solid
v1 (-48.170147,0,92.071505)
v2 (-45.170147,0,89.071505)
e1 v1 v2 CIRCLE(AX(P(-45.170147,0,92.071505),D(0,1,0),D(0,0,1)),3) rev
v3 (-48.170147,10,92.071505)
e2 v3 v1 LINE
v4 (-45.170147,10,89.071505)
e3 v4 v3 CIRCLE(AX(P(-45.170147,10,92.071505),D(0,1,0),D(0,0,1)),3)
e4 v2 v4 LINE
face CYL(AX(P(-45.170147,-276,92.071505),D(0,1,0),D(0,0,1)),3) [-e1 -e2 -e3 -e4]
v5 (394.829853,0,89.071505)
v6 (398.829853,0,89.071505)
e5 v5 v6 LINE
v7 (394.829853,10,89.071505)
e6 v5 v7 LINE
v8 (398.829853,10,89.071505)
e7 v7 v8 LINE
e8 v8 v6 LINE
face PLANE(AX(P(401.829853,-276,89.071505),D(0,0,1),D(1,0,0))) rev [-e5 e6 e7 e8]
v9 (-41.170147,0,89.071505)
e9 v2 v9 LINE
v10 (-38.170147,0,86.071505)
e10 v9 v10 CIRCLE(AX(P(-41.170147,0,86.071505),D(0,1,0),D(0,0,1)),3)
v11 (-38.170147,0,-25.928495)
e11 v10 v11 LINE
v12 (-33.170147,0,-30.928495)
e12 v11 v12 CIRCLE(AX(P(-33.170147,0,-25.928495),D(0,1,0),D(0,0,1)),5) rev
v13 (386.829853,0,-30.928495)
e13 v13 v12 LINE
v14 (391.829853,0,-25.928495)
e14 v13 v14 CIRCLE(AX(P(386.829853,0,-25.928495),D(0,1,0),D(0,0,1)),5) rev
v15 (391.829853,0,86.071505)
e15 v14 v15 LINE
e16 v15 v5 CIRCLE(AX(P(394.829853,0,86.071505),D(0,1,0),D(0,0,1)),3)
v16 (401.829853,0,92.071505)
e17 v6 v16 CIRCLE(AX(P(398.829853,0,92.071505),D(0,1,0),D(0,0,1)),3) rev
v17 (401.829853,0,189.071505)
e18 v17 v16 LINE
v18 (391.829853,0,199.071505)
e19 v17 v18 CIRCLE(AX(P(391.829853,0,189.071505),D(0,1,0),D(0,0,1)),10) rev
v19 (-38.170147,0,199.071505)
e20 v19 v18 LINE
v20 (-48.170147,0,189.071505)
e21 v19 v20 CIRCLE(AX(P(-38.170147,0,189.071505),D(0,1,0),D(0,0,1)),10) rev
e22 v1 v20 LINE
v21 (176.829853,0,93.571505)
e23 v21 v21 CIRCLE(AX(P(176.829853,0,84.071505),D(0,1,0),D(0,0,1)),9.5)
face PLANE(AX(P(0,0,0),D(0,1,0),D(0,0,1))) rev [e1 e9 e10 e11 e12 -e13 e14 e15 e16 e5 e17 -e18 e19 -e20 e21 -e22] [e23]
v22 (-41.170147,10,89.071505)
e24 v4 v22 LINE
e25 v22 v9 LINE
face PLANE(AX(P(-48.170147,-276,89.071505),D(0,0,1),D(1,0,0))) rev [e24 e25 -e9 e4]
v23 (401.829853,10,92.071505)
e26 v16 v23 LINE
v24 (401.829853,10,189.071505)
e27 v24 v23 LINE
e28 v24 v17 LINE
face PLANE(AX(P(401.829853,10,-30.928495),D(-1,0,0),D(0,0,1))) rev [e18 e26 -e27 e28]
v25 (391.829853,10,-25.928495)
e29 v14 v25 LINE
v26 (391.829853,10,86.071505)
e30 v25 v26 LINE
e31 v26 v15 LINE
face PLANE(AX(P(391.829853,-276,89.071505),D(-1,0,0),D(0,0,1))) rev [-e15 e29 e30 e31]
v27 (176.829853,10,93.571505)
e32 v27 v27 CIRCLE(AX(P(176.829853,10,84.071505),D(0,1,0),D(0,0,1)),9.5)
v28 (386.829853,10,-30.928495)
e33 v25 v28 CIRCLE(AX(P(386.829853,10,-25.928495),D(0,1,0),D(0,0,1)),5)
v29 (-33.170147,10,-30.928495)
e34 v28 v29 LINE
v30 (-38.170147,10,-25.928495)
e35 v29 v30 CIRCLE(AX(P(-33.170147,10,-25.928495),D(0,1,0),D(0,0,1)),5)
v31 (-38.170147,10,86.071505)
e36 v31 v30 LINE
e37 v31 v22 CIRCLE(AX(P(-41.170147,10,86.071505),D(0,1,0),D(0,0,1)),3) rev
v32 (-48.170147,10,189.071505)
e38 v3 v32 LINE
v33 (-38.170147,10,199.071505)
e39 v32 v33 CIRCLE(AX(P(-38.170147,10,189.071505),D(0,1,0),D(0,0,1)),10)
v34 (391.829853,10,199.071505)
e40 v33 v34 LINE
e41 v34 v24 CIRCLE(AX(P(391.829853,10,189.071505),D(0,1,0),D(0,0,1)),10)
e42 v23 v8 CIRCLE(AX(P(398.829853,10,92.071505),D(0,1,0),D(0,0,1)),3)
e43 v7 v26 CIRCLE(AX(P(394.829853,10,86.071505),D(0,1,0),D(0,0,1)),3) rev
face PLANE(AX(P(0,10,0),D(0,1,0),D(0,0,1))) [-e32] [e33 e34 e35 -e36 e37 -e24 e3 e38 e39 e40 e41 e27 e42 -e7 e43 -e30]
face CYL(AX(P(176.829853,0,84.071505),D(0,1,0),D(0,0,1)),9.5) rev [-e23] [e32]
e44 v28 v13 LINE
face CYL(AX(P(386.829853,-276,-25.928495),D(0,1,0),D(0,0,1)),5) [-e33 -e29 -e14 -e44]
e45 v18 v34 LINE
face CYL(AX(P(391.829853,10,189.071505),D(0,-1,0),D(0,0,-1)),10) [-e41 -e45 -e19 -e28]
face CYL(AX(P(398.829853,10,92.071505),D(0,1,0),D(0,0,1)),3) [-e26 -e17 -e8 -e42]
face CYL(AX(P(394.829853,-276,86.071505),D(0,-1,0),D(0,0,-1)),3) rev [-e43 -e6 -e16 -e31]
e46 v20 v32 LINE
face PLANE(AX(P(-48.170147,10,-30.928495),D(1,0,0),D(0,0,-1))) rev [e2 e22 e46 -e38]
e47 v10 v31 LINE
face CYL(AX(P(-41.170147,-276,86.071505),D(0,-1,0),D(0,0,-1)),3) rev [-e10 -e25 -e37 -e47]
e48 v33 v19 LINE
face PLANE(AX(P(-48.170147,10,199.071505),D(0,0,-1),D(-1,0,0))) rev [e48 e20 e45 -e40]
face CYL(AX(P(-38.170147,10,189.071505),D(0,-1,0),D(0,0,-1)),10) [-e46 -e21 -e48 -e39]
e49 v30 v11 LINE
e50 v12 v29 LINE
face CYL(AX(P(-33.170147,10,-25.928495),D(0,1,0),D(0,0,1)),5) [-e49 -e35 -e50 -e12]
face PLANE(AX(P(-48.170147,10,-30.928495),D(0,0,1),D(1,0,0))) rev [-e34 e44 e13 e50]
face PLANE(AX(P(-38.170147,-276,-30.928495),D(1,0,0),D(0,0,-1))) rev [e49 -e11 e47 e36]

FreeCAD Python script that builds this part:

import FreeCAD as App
import Part
import Sketcher


def edges_at(feature, points):
    """Names of the edges that pass closest to the given points."""
    edges = feature.Shape.Edges
    near = lambda p: min(range(len(edges)), key=lambda i: edges[i].distToShape(Part.Vertex(*p))[0])
    return sorted({f"Edge{near(p) + 1}" for p in points})


def add_polygon(sketch, points):
    """Adds a closed chain of lines whose ends are joined by coincident constraints."""
    first, n = sketch.GeometryCount, len(points)
    for a, b in zip(points, points[1:] + points[:1]):
        sketch.addGeometry(Part.LineSegment(App.Vector(*a, 0), App.Vector(*b, 0)), False)
    for i in range(n):
        sketch.addConstraint(Sketcher.Constraint("Coincident", first + i, 2, first + (i + 1) % n, 1))

doc = App.newDocument("Part")
body = doc.addObject("PartDesign::Body", "Body")

sketch1 = body.newObject("Sketcher::SketchObject", "Sketch")
sketch1.AttachmentSupport = (doc.getObject("XZ_Plane"), [""])
sketch1.MapMode = "FlatFace"
add_polygon(sketch1, [(-48, -31), (-48, 199), (402, 199), (402, -31)])
sketch1.addConstraint(Sketcher.Constraint("Vertical", 0))
sketch1.addConstraint(Sketcher.Constraint("Horizontal", 1))
sketch1.addConstraint(Sketcher.Constraint("Vertical", 2))
sketch1.addConstraint(Sketcher.Constraint("Horizontal", 3))
sketch1.addConstraint(Sketcher.Constraint("DistanceX", 1, 1, 1, 2, 450.0))
sketch1.addConstraint(Sketcher.Constraint("DistanceY", 0, 1, 0, 2, 230.0))
sketch1.addConstraint(Sketcher.Constraint("DistanceX", 0, 2, -1, 1, 48.170147))
sketch1.addConstraint(Sketcher.Constraint("DistanceY", -1, 1, 0, 2, 199.071505))
pad1 = body.newObject("PartDesign::Pad", "Pad")
pad1.Profile = sketch1
pad1.Length = 10
pad1.Reversed = True

sketch2 = body.newObject("Sketcher::SketchObject", "Sketch001")
sketch2.AttachmentSupport = (doc.getObject("XZ_Plane"), [""])
sketch2.MapMode = "FlatFace"
sketch2.AttachmentOffset = App.Placement(App.Vector(0, 0, -10), App.Rotation())
add_polygon(sketch2, [(-48, -31), (-48, 89), (-38, 89), (-38, -31)])
add_polygon(sketch2, [(392, -31), (392, 89), (402, 89), (402, -31)])
sketch2.addConstraint(Sketcher.Constraint("Vertical", 0))
sketch2.addConstraint(Sketcher.Constraint("Horizontal", 1))
sketch2.addConstraint(Sketcher.Constraint("Vertical", 2))
sketch2.addConstraint(Sketcher.Constraint("Horizontal", 3))
sketch2.addConstraint(Sketcher.Constraint("Vertical", 4))
sketch2.addConstraint(Sketcher.Constraint("Horizontal", 5))
sketch2.addConstraint(Sketcher.Constraint("Vertical", 6))
sketch2.addConstraint(Sketcher.Constraint("Horizontal", 7))
sketch2.addConstraint(Sketcher.Constraint("Horizontal", 1, 2, 4, 2))
sketch2.addConstraint(Sketcher.Constraint("Horizontal", 3, 2, 6, 2))
sketch2.addConstraint(Sketcher.Constraint("Equal", 3, 5))
sketch2.addConstraint(Sketcher.Constraint("DistanceX", 1, 1, 1, 2, 10.0))
sketch2.addConstraint(Sketcher.Constraint("DistanceY", 0, 1, 0, 2, 120.0))
sketch2.addConstraint(Sketcher.Constraint("DistanceX", 1, 2, 4, 2, 430.0))
sketch2.addConstraint(Sketcher.Constraint("DistanceX", 0, 2, -1, 1, 48.170147))
sketch2.addConstraint(Sketcher.Constraint("DistanceY", -1, 1, 0, 2, 89.071505))
pocket1 = body.newObject("PartDesign::Pocket", "Pocket")
pocket1.Profile = sketch2
pocket1.Length = 286
pocket1.Reversed = True
doc.recompute()

fillet = body.newObject("PartDesign::Fillet", "Fillet")
fillet.Base = (pocket1, edges_at(pocket1, [(-48.17, 5, 199.072)]))
fillet.Radius = 10
doc.recompute()

fillet2 = body.newObject("PartDesign::Fillet", "Fillet001")
fillet2.Base = (fillet, edges_at(fillet, [(-48.17, 5, 89.072), (-38.17, 5, 89.072)]))
fillet2.Radius = 3
doc.recompute()

fillet3 = body.newObject("PartDesign::Fillet", "Fillet002")
fillet3.Base = (fillet2, edges_at(fillet2, [(-38.17, 5, -30.928), (391.83, 5, -30.928)]))
fillet3.Radius = 5
doc.recompute()

fillet4 = body.newObject("PartDesign::Fillet", "Fillet003")
fillet4.Base = (fillet3, edges_at(fillet3, [(401.83, 5, 89.072), (391.83, 5, 89.072)]))
fillet4.Radius = 3
doc.recompute()

fillet5 = body.newObject("PartDesign::Fillet", "Fillet004")
fillet5.Base = (fillet4, edges_at(fillet4, [(401.83, 5, 199.072)]))
fillet5.Radius = 10

sketch3 = body.newObject("Sketcher::SketchObject", "Sketch002")
sketch3.AttachmentSupport = (doc.getObject("XZ_Plane"), [""])
sketch3.MapMode = "FlatFace"
sketch3.AttachmentOffset = App.Placement(App.Vector(0, 0, -10), App.Rotation())
sketch3.addGeometry(Part.Circle(App.Vector(177, 84, 0), App.Vector(0, 0, 1), 10), False)
sketch3.addConstraint(Sketcher.Constraint("Diameter", 0, 19.0))
sketch3.addConstraint(Sketcher.Constraint("DistanceX", -1, 1, 0, 3, 176.829853))
sketch3.addConstraint(Sketcher.Constraint("DistanceY", -1, 1, 0, 3, 84.071505))
pocket2 = body.newObject("PartDesign::Pocket", "Pocket001")
pocket2.Profile = sketch3
pocket2.Length = 10
pocket2.Reversed = True

doc.recompute()
